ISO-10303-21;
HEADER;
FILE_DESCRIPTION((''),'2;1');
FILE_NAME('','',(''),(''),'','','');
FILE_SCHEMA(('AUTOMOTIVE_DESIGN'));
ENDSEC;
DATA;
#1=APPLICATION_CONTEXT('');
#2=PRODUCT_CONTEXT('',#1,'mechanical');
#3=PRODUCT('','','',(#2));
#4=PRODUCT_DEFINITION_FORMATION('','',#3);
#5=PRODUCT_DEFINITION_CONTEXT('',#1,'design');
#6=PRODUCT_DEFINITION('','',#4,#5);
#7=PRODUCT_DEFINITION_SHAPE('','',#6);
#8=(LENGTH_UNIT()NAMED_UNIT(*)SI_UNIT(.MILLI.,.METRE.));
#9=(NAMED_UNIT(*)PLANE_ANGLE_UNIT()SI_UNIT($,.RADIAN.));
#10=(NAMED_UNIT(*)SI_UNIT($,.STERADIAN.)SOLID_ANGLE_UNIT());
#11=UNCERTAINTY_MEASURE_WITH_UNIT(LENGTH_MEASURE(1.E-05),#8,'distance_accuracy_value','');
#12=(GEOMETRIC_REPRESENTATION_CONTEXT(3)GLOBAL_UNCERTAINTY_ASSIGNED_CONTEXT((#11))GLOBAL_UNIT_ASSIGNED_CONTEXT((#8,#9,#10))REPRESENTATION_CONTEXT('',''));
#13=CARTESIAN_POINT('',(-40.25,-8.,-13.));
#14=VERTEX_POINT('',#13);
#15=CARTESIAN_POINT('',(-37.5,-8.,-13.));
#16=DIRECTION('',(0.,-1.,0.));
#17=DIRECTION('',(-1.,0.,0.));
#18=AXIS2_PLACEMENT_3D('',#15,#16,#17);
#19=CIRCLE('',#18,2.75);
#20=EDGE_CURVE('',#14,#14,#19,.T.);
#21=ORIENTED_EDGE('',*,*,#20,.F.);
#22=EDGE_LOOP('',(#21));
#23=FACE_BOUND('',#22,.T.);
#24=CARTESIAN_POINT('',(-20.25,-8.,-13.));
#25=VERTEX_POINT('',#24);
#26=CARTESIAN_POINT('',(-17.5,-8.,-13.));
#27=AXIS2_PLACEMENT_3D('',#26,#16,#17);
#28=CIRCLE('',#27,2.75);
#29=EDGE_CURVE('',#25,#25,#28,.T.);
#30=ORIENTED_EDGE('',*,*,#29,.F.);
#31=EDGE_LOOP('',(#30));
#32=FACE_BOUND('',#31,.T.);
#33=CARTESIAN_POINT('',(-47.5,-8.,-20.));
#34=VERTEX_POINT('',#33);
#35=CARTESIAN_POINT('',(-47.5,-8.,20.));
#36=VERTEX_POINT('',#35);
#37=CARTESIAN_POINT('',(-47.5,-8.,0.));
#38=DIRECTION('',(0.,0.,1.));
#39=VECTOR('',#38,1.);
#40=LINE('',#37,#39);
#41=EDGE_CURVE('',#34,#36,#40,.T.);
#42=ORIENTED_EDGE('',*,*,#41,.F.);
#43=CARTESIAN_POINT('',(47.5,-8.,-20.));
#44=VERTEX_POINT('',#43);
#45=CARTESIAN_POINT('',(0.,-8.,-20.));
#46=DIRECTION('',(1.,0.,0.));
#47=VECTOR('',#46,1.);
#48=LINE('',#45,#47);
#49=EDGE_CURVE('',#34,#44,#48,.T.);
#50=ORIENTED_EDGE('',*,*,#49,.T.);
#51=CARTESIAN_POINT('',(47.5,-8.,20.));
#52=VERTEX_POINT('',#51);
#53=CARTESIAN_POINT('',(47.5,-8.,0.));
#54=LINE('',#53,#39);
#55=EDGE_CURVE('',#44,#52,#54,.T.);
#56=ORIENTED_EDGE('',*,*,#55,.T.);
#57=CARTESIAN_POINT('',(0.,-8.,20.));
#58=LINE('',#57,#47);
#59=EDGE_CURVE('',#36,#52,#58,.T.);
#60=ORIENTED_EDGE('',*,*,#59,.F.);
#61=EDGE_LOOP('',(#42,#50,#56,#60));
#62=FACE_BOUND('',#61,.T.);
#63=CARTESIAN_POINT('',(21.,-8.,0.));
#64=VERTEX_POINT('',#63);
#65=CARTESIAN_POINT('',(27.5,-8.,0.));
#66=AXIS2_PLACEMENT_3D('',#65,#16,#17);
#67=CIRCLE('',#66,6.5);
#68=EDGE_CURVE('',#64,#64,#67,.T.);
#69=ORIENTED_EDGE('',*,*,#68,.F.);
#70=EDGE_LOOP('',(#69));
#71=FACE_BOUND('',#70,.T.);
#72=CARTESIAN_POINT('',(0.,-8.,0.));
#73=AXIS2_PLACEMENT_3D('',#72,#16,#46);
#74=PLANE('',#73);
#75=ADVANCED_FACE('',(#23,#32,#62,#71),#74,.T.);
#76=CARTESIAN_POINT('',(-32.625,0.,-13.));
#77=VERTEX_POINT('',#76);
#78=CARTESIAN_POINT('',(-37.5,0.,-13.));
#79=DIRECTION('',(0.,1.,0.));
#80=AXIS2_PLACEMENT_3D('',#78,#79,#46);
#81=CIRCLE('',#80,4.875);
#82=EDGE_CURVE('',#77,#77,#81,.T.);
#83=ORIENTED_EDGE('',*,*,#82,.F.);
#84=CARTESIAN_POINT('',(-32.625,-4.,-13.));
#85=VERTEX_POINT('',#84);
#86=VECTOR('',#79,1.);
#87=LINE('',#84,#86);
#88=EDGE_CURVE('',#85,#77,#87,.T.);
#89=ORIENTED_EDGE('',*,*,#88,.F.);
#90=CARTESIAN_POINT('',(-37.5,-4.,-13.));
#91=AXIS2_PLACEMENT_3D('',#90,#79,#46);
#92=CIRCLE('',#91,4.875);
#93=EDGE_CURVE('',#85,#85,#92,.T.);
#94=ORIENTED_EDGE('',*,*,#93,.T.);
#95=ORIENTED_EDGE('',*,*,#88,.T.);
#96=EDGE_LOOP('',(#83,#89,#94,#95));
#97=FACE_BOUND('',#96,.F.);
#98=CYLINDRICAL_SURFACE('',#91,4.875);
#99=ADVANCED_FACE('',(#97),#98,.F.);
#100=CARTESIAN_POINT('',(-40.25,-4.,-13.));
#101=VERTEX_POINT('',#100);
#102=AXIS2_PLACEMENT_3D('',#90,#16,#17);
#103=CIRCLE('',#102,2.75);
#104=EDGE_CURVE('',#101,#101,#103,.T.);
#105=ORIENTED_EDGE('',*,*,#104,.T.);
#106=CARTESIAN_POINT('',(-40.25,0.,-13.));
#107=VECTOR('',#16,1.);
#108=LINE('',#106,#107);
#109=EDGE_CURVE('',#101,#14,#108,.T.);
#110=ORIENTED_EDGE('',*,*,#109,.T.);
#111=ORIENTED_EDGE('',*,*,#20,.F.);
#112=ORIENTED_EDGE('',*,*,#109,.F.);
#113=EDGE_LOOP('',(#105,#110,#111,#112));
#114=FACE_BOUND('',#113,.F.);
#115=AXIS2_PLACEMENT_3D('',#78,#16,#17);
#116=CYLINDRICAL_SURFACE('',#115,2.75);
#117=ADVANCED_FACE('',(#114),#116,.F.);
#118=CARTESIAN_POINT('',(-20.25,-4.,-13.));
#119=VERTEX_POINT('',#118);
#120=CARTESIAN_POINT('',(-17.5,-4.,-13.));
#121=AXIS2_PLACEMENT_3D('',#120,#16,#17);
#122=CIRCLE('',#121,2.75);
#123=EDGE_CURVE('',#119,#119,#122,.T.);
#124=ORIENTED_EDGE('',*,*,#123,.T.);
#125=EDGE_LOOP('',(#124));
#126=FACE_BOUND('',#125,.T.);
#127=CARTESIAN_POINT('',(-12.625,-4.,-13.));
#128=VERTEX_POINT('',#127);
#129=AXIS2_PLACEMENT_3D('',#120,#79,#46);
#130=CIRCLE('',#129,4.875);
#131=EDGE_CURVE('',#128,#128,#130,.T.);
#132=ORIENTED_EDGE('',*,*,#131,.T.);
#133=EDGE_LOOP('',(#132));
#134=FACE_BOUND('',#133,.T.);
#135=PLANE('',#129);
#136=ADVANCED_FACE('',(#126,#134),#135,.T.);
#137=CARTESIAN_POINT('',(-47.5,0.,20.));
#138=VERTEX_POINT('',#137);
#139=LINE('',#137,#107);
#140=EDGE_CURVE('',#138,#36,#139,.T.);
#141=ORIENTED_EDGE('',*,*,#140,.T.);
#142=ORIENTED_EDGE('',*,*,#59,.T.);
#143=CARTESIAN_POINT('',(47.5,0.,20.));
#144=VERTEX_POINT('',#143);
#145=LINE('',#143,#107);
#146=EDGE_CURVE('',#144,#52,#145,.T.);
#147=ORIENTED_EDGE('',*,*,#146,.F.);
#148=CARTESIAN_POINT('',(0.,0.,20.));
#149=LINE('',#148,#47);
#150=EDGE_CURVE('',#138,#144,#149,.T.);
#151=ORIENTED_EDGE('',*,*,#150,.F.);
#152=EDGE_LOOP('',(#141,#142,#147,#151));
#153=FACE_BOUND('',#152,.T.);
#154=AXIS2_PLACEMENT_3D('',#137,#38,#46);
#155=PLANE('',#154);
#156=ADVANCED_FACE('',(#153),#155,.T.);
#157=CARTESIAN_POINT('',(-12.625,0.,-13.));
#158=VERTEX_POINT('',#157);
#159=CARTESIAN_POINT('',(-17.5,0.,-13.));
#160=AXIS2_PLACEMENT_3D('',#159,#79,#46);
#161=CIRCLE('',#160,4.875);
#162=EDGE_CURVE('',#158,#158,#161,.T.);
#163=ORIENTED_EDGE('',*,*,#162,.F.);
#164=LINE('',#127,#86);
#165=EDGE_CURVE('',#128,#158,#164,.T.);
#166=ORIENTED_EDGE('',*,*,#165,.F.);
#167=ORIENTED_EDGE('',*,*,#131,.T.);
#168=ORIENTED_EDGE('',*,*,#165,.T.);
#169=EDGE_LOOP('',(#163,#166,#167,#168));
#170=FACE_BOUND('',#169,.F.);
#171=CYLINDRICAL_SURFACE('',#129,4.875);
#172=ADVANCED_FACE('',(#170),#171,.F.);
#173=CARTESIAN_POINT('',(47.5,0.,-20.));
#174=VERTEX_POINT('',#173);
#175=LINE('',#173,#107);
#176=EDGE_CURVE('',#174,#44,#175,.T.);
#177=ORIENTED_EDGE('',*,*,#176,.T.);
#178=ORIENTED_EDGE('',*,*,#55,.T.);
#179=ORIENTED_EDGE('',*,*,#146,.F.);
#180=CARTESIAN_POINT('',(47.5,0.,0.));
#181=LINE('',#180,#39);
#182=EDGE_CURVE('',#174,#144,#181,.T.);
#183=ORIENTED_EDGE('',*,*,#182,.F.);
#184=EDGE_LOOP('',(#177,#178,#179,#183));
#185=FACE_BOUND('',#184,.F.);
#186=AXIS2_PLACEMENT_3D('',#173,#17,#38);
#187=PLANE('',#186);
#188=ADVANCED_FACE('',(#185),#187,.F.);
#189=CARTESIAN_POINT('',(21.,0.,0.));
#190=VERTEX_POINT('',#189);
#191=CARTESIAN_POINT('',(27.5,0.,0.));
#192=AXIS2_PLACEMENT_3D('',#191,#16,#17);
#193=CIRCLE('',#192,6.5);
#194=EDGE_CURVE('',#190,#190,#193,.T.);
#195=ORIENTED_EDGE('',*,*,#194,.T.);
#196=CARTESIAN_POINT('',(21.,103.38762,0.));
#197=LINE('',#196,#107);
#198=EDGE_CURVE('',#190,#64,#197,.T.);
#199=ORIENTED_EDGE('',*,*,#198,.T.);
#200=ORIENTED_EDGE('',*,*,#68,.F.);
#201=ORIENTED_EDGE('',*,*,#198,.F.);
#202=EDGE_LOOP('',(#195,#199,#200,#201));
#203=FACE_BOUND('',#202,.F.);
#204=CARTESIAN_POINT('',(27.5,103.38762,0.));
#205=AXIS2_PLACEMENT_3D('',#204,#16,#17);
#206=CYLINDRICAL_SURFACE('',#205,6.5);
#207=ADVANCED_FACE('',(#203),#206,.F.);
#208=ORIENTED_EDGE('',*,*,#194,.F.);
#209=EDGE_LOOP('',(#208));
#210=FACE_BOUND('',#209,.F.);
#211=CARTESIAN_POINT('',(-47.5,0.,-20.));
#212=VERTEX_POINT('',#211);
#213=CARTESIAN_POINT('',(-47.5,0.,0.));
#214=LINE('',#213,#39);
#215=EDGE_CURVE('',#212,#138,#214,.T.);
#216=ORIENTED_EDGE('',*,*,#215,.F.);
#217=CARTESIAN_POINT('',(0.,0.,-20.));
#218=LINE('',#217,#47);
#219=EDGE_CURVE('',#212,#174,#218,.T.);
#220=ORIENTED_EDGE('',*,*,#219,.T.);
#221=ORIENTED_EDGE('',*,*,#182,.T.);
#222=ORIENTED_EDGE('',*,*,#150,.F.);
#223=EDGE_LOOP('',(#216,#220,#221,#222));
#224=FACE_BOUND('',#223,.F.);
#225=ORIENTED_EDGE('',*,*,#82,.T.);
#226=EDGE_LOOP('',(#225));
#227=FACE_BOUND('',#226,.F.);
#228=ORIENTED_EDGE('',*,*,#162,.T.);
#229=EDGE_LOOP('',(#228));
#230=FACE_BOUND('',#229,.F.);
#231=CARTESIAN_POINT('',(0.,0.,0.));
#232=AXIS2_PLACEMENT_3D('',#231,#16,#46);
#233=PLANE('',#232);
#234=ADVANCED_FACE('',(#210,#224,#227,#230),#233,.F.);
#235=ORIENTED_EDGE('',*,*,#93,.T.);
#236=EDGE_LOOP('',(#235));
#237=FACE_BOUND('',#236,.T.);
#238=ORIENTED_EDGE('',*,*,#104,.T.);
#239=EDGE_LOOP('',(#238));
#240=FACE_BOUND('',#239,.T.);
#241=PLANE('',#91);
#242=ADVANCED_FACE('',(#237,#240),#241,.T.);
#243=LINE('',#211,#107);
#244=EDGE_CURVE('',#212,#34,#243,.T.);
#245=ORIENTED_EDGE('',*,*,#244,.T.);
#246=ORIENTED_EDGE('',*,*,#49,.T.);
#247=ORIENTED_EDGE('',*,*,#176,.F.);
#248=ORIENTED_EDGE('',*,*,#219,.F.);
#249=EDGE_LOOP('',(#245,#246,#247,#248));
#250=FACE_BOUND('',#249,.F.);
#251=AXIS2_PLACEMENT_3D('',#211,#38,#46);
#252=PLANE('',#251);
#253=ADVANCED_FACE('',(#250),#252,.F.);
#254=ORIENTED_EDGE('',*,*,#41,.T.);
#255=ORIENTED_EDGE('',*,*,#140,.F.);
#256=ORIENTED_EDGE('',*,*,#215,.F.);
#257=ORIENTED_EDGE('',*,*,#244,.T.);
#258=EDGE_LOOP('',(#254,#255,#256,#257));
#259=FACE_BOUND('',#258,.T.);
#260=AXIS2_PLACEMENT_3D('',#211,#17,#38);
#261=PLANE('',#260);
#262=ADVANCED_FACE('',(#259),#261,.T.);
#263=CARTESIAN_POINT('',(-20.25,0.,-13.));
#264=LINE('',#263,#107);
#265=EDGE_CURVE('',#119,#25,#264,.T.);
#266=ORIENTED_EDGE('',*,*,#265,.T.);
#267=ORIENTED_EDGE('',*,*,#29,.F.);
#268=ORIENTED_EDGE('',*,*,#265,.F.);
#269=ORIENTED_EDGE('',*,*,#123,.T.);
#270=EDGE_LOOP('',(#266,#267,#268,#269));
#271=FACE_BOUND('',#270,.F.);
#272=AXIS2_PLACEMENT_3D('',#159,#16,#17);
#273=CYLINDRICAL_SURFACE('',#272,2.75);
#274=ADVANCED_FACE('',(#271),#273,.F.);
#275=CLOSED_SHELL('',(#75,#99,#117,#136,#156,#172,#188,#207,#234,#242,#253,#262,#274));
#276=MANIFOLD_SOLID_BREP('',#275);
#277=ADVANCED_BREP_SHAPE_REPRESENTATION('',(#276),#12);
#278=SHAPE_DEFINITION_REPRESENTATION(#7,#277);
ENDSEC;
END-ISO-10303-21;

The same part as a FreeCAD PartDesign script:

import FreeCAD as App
import Part
import Sketcher


def add_polygon(sketch, points):
    """Adds a closed chain of lines whose ends are joined by coincident constraints."""
    first, n = sketch.GeometryCount, len(points)
    for a, b in zip(points, points[1:] + points[:1]):
        sketch.addGeometry(Part.LineSegment(App.Vector(*a, 0), App.Vector(*b, 0)), False)
    for i in range(n):
        sketch.addConstraint(Sketcher.Constraint("Coincident", first + i, 2, first + (i + 1) % n, 1))

doc = App.newDocument("Part")
body = doc.addObject("PartDesign::Body", "Body")

# Sketch on XZ plane
sketch1 = body.newObject("Sketcher::SketchObject", "Sketch")
sketch1.AttachmentSupport = (doc.getObject("XZ_Plane"), [""])
sketch1.MapMode = "FlatFace"
add_polygon(sketch1, [(-48, 20), (-48, -20), (48, -20), (48, 20)])  # lines 0-3
sketch1.addConstraint([
    Sketcher.Constraint("Vertical", 0),
    Sketcher.Constraint("Horizontal", 1),
    Sketcher.Constraint("Vertical", 2),
    Sketcher.Constraint("Horizontal", 3),
    Sketcher.Constraint("Symmetric", 0, 2, 2, 2, -1, 1),
    Sketcher.Constraint("DistanceX", 1, 1, 1, 2, 95.0),
    Sketcher.Constraint("DistanceY", 0, 2, 0, 1, 40.0),
])
pad1 = body.newObject("PartDesign::Pad", "Pad")
pad1.Profile = sketch1
pad1.Length = 8

# Sketch on XZ plane
sketch2 = body.newObject("Sketcher::SketchObject", "Sketch001")
sketch2.AttachmentSupport = (doc.getObject("XZ_Plane"), [""])
sketch2.MapMode = "FlatFace"
sketch2.addGeometry([
    Part.Circle(App.Vector(-17.5, -13, 0), App.Vector(0, 0, 1), 2.8),
    Part.Circle(App.Vector(-37.5, -13, 0), App.Vector(0, 0, 1), 2.8),
], False)
sketch2.addConstraint([
    Sketcher.Constraint("Equal", 0, 1),
    Sketcher.Constraint("Horizontal", 0, 3, 1, 3),
    Sketcher.Constraint("Diameter", 0, 5.5),
    Sketcher.Constraint("DistanceY", 0, 3, -1, 1, 13.0),
    Sketcher.Constraint("DistanceX", 1, 3, 0, 3, 20.0),
    Sketcher.Constraint("DistanceX", 0, 3, -1, 1, 17.5),
])
doc.recompute()
hole = body.newObject("PartDesign::Hole", "Hole")
hole.Profile = sketch2
hole.ThreadType = "None"
hole.Diameter = 5.5
hole.DepthType = "ThroughAll"
hole.HoleCutType = "Counterbore"
hole.HoleCutDiameter = 9.75
hole.HoleCutDepth = 4
hole.Reversed = True

# Sketch on XZ plane
sketch3 = body.newObject("Sketcher::SketchObject", "Sketch002")
sketch3.AttachmentSupport = (doc.getObject("XZ_Plane"), [""])
sketch3.MapMode = "FlatFace"
sketch3.addGeometry(Part.Circle(App.Vector(28, 0, 0), App.Vector(0, 0, 1), 6), False)
sketch3.addConstraint([
    Sketcher.Constraint("PointOnObject", 0, 3, -1),
    Sketcher.Constraint("Diameter", 0, 13.0),
    Sketcher.Constraint("DistanceX", -1, 1, 0, 3, 27.5),
])
doc.recompute()
hole2 = body.newObject("PartDesign::Hole", "Hole001")
hole2.Profile = sketch3
hole2.ThreadType = "None"
hole2.Diameter = 13
hole2.DepthType = "ThroughAll"
hole2.Reversed = True

doc.recompute()
